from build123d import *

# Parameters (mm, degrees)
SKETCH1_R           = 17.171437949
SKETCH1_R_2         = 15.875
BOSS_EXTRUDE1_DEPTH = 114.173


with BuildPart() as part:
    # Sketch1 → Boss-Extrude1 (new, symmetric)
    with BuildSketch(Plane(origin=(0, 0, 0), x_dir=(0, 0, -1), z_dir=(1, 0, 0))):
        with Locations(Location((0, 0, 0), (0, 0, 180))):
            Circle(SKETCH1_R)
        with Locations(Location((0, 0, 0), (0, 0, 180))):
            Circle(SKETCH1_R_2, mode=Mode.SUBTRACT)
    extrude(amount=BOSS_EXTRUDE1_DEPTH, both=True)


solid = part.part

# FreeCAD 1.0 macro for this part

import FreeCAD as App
import Part
import Sketcher

V = App.Vector
Q = App.Units.Quantity

doc = App.newDocument("Part")
body = doc.addObject("PartDesign::Body", "Body")

# Sketch on YZ plane
sketch1 = body.newObject("Sketcher::SketchObject", "Sketch")
sketch1.AttachmentSupport = (doc.getObject("YZ_Plane"), [""])
sketch1.MapMode = "FlatFace"
sketch1.addGeometry(Part.Circle(V(0, 0, 0), V(0, 0, 1), 17), False)
sketch1.addGeometry(Part.Circle(V(0, 0, 0), V(0, 0, 1), 16), False)
sketch1.addConstraint(Sketcher.Constraint("Coincident", 0, 3, -1, 1))
sketch1.addConstraint(Sketcher.Constraint("Coincident", 1, 3, -1, 1))
sketch1.addConstraint(Sketcher.Constraint("Diameter", 1, Q("1.25 in")))
sketch1.addConstraint(Sketcher.Constraint("Diameter", 0, 34.342876))
pad1 = body.newObject("PartDesign::Pad", "Pad")
pad1.Profile = sketch1
pad1.Length = Q("8.99 in")
pad1.Midplane = True

doc.recompute()
